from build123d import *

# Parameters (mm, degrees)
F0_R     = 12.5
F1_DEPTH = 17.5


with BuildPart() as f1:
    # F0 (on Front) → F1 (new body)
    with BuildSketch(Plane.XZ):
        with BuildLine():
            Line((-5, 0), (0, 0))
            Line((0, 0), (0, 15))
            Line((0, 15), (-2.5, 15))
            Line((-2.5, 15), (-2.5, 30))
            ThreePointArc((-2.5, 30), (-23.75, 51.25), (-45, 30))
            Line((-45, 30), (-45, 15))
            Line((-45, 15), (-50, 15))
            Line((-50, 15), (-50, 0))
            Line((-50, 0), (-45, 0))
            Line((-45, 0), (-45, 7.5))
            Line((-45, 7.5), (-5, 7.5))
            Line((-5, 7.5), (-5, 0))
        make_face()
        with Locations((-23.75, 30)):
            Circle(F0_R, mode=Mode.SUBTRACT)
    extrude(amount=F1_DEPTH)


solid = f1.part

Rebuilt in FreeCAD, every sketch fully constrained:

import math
import FreeCAD as App
import Part
import Sketcher

V = App.Vector
Q = App.Units.Quantity

doc = App.newDocument("Part")
body = doc.addObject("PartDesign::Body", "Body")

# Sketch on XZ plane
sketch1 = doc.addObject("Sketcher::SketchObject", "Sketch")
body.addObject(sketch1)
sketch1.AttachmentSupport = (doc.XZ_Plane, [""])
sketch1.MapMode = "FlatFace"
sketch1.addGeometry(Part.LineSegment(V(-5, 0, 0), V(0, 0, 0)), False)
sketch1.addGeometry(Part.LineSegment(V(0, 0, 0), V(0, 15, 0)), False)
sketch1.addGeometry(Part.LineSegment(V(0, 15, 0), V(-2.5, 15, 0)), False)
sketch1.addGeometry(Part.LineSegment(V(-2.5, 15, 0), V(-2.5, 30, 0)), False)
sketch1.addGeometry(Part.ArcOfCircle(Part.Circle(V(-23.75, 30, 0), V(0, 0, 1), 21.25), math.radians(0), math.radians(180)), False)
sketch1.addGeometry(Part.LineSegment(V(-45, 30, 0), V(-45, 15, 0)), False)
sketch1.addGeometry(Part.LineSegment(V(-45, 15, 0), V(-50, 15, 0)), False)
sketch1.addGeometry(Part.LineSegment(V(-50, 15, 0), V(-50, 0, 0)), False)
sketch1.addGeometry(Part.LineSegment(V(-50, 0, 0), V(-45, 0, 0)), False)
sketch1.addGeometry(Part.LineSegment(V(-45, 0, 0), V(-45, 7.5, 0)), False)
sketch1.addGeometry(Part.LineSegment(V(-45, 7.5, 0), V(-5, 7.5, 0)), False)
sketch1.addGeometry(Part.LineSegment(V(-5, 7.5, 0), V(-5, 0, 0)), False)
sketch1.addGeometry(Part.Circle(V(-23.75, 30, 0), V(0, 0, 1), 12.5), False)
sketch1.addConstraint(Sketcher.Constraint("Coincident", 0, 2, 1, 1))
sketch1.addConstraint(Sketcher.Constraint("Coincident", 1, 2, 2, 1))
sketch1.addConstraint(Sketcher.Constraint("Coincident", 2, 2, 3, 1))
sketch1.addConstraint(Sketcher.Constraint("Tangent", 3, 2, 4, 1))
sketch1.addConstraint(Sketcher.Constraint("Tangent", 4, 2, 5, 1))
sketch1.addConstraint(Sketcher.Constraint("Coincident", 5, 2, 6, 1))
sketch1.addConstraint(Sketcher.Constraint("Coincident", 6, 2, 7, 1))
sketch1.addConstraint(Sketcher.Constraint("Coincident", 7, 2, 8, 1))
sketch1.addConstraint(Sketcher.Constraint("Coincident", 8, 2, 9, 1))
sketch1.addConstraint(Sketcher.Constraint("Coincident", 9, 2, 10, 1))
sketch1.addConstraint(Sketcher.Constraint("Coincident", 10, 2, 11, 1))
sketch1.addConstraint(Sketcher.Constraint("Coincident", 11, 2, 0, 1))
sketch1.addConstraint(Sketcher.Constraint("Horizontal", 0))
sketch1.addConstraint(Sketcher.Constraint("Vertical", 1))
sketch1.addConstraint(Sketcher.Constraint("Horizontal", 2))
sketch1.addConstraint(Sketcher.Constraint("Vertical", 3))
sketch1.addConstraint(Sketcher.Constraint("Vertical", 5))
sketch1.addConstraint(Sketcher.Constraint("Horizontal", 6))
sketch1.addConstraint(Sketcher.Constraint("Vertical", 7))
sketch1.addConstraint(Sketcher.Constraint("Horizontal", 8))
sketch1.addConstraint(Sketcher.Constraint("Vertical", 9))
sketch1.addConstraint(Sketcher.Constraint("Horizontal", 10))
sketch1.addConstraint(Sketcher.Constraint("Vertical", 11))
sketch1.addConstraint(Sketcher.Constraint("Coincident", 0, 2, -1, 1))
sketch1.addConstraint(Sketcher.Constraint("Coincident", 12, 3, 4, 3))
sketch1.addConstraint(Sketcher.Constraint("PointOnObject", 7, 2, -1))
sketch1.addConstraint(Sketcher.Constraint("Horizontal", 2, 2, 5, 2))
sketch1.addConstraint(Sketcher.Constraint("Vertical", 5, 2, 8, 2))
sketch1.addConstraint(Sketcher.Constraint("Equal", 0, 6))
sketch1.addConstraint(Sketcher.Constraint("Equal", 1, 3))
sketch1.addConstraint(Sketcher.Constraint("Diameter", 12, Q("25 mm")))
sketch1.addConstraint(Sketcher.Constraint("DistanceX", 0, 1, 0, 2, Q("5 mm")))
sketch1.addConstraint(Sketcher.Constraint("DistanceX", 10, 1, 10, 2, Q("40 mm")))
sketch1.addConstraint(Sketcher.Constraint("DistanceY", 1, 1, 1, 2, Q("15 mm")))
sketch1.addConstraint(Sketcher.Constraint("Radius", 4, Q("21.25 mm")))
sketch1.addConstraint(Sketcher.Constraint("DistanceY", 9, 1, 9, 2, Q("7.5 mm")))
pad1 = doc.addObject("PartDesign::Pad", "Pad")
body.addObject(pad1)
pad1.Profile = sketch1
pad1.Length = 17.5

doc.recompute()
